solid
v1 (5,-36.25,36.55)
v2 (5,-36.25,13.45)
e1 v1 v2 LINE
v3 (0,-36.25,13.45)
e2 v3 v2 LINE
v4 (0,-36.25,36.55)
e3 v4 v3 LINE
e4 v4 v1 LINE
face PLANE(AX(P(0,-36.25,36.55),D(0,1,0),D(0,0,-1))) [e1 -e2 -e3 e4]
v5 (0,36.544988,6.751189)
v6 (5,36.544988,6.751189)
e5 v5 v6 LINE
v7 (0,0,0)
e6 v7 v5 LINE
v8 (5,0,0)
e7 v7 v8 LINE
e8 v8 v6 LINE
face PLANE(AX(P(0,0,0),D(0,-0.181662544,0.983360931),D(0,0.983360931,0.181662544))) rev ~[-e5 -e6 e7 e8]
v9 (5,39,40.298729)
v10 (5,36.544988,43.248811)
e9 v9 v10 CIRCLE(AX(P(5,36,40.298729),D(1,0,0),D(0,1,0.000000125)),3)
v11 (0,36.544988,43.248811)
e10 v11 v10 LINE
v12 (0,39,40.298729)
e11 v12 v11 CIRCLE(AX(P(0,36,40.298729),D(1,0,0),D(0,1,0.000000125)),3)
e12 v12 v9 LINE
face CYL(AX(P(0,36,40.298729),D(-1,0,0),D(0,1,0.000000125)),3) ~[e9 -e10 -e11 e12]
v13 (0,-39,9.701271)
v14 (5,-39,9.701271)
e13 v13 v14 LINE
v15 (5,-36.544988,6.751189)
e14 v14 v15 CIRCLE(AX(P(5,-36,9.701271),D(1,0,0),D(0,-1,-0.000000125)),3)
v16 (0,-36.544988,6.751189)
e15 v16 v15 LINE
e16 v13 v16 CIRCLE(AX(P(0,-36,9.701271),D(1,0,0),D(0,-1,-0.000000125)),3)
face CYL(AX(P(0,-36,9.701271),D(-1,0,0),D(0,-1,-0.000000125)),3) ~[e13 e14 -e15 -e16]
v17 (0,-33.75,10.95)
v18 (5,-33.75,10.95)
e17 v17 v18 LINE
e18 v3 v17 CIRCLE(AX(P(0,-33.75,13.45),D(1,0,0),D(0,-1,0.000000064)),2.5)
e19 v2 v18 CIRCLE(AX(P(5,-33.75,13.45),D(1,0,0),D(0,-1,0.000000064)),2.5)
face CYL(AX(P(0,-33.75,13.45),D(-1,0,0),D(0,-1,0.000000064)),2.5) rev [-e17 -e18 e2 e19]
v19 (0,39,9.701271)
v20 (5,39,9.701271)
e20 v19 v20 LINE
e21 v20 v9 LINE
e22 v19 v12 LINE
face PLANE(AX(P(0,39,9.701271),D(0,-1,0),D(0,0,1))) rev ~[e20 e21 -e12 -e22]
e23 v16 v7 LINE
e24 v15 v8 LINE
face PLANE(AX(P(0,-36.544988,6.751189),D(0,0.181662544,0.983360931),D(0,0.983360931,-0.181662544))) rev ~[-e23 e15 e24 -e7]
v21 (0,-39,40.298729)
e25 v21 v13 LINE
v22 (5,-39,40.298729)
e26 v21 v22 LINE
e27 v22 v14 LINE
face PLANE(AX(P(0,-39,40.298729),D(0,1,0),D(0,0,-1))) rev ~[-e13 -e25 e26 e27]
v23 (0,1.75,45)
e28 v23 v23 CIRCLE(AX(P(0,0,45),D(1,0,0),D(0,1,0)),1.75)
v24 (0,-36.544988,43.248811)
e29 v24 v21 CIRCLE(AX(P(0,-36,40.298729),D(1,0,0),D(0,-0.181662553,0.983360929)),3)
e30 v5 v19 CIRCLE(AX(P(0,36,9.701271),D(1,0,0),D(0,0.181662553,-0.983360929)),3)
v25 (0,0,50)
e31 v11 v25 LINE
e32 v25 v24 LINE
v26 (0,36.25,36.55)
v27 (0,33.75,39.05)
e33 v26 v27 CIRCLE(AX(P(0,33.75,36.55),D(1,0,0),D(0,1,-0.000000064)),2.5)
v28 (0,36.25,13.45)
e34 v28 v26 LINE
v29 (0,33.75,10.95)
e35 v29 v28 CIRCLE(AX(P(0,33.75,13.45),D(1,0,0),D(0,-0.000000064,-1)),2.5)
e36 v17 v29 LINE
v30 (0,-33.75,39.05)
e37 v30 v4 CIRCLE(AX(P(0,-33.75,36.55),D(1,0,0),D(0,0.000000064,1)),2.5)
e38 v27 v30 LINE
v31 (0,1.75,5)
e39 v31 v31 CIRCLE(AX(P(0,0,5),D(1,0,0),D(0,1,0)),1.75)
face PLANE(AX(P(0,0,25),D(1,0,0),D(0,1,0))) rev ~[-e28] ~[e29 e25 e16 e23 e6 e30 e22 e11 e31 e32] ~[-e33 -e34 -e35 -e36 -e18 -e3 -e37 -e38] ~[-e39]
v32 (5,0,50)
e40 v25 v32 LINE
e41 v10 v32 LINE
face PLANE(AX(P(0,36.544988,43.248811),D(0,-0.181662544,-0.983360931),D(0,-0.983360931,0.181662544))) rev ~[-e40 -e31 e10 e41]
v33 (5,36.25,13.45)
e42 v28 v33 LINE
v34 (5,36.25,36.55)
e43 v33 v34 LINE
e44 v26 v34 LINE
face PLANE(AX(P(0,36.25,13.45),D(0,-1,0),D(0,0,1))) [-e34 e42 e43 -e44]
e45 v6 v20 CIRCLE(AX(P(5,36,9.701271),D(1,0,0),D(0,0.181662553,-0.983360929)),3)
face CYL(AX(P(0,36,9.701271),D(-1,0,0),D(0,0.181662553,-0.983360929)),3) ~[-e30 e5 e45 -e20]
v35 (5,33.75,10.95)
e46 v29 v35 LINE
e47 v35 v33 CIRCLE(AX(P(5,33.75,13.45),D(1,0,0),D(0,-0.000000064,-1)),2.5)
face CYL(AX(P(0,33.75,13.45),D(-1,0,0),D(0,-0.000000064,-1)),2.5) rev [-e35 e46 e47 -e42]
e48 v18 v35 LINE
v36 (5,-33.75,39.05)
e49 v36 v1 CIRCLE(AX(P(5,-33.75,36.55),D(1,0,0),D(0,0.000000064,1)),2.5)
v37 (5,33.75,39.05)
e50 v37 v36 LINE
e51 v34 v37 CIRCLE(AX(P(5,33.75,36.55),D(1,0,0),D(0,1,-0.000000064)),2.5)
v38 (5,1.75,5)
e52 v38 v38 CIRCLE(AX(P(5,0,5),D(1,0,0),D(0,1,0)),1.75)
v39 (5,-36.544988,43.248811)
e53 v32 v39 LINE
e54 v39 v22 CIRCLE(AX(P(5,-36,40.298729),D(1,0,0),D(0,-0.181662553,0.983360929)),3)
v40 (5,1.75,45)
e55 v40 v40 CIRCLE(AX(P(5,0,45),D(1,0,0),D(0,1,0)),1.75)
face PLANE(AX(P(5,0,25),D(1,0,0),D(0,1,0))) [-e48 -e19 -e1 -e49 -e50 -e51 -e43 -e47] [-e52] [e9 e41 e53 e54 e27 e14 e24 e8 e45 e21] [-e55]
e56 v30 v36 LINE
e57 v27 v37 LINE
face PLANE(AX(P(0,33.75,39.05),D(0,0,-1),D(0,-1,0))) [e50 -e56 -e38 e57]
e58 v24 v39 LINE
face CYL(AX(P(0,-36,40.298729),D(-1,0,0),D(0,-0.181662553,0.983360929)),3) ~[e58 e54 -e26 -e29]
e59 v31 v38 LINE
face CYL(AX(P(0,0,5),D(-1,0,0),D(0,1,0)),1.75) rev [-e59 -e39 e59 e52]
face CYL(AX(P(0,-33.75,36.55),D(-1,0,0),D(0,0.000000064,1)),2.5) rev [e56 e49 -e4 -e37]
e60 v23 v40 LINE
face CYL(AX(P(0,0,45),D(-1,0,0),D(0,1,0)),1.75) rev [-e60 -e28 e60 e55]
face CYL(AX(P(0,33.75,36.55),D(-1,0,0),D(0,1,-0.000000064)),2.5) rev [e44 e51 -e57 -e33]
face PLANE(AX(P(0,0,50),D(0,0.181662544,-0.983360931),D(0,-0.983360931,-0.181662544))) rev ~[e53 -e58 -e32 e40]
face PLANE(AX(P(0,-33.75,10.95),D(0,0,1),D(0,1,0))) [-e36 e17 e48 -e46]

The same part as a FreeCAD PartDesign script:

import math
import FreeCAD as App
import Part
import Sketcher
from FreeCAD import Vector

doc = App.newDocument("Part")
body = doc.addObject("PartDesign::Body", "Body")

# Sketch on YZ plane
sketch1 = body.newObject("Sketcher::SketchObject", "Sketch")
sketch1.AttachmentSupport = (doc.getObject("YZ_Plane"), [""])
sketch1.MapMode = "FlatFace"
sketch1.addGeometry([
    Part.LineSegment(Vector(39, 9.7, 0), Vector(39, 40.3, 0)),  # 0
    Part.ArcOfCircle(Part.Circle(Vector(36, 40.3, 0), Vector(0, 0, 1), 3), math.radians(0), math.radians(80)),  # 1
    Part.LineSegment(Vector(36.5, 43.2, 0), Vector(0, 50, 0)),  # 2
    Part.LineSegment(Vector(0, 50, 0), Vector(-36.5, 43.2, 0)),  # 3
    Part.ArcOfCircle(Part.Circle(Vector(-36, 40.3, 0), Vector(0, 0, 1), 3), math.radians(100), math.radians(180)),  # 4
    Part.LineSegment(Vector(-39, 40.3, 0), Vector(-39, 9.7, 0)),  # 5
    Part.ArcOfCircle(Part.Circle(Vector(-36, 9.7, 0), Vector(0, 0, 1), 3), math.radians(-180), math.radians(-100)),  # 6
    Part.LineSegment(Vector(-36.5, 6.8, 0), Vector(0, 0, 0)),  # 7
    Part.LineSegment(Vector(0, 0, 0), Vector(36.5, 6.8, 0)),  # 8
    Part.ArcOfCircle(Part.Circle(Vector(36, 9.7, 0), Vector(0, 0, 1), 3), math.radians(-80), math.radians(0)),  # 9
], False)
sketch1.addConstraint([
    Sketcher.Constraint("Tangent", 0, 2, 1, 1),
    Sketcher.Constraint("Tangent", 1, 2, 2, 1),
    Sketcher.Constraint("Coincident", 2, 2, 3, 1),
    Sketcher.Constraint("Tangent", 3, 2, 4, 1),
    Sketcher.Constraint("Tangent", 4, 2, 5, 1),
    Sketcher.Constraint("Tangent", 5, 2, 6, 1),
    Sketcher.Constraint("Tangent", 6, 2, 7, 1),
    Sketcher.Constraint("Coincident", 7, 2, 8, 1),
    Sketcher.Constraint("Tangent", 8, 2, 9, 1),
    Sketcher.Constraint("Tangent", 9, 2, 0, 1),
    Sketcher.Constraint("Vertical", 0),
    Sketcher.Constraint("Vertical", 5),
    Sketcher.Constraint("Coincident", 7, 2, -1, 1),
    Sketcher.Constraint("Equal", 1, 4),
    Sketcher.Constraint("Equal", 4, 6),
    Sketcher.Constraint("Equal", 6, 9),
    Sketcher.Constraint("Symmetric", 1, 3, 4, 3, -2),
    Sketcher.Constraint("PointOnObject", 2, 2, -2),
    Sketcher.Constraint("Parallel", 2, 7),
    Sketcher.Constraint("Parallel", 3, 8),
    Sketcher.Constraint("Radius", 1, 3.0),
    Sketcher.Constraint("DistanceX", -1, 1, 1, 3, 36.0),
    Sketcher.Constraint("DistanceY", -1, 1, 2, 2, 50.0),
    Sketcher.Constraint("DistanceY", 0, 1, 0, 2, 30.597458),
])
pad1 = body.newObject("PartDesign::Pad", "Pad")
pad1.Profile = sketch1
pad1.Length = 5

# Sketch on YZ plane
sketch2 = body.newObject("Sketcher::SketchObject", "Sketch001")
sketch2.AttachmentSupport = (doc.getObject("YZ_Plane"), [""])
sketch2.MapMode = "FlatFace"
sketch2.addGeometry([
    Part.Circle(Vector(0, 45, 0), Vector(0, 0, 1), 1.8),  # 0
    Part.Circle(Vector(0, 5, 0), Vector(0, 0, 1), 1.8),  # 1
    Part.LineSegment(Vector(-33.8, 10.9, 0), Vector(33.8, 10.9, 0)),  # 2
    Part.ArcOfCircle(Part.Circle(Vector(33.8, 13.4, 0), Vector(0, 0, 1), 2.5), math.radians(-90), math.radians(0)),  # 3
    Part.LineSegment(Vector(36.2, 13.4, 0), Vector(36.2, 36.5, 0)),  # 4
    Part.ArcOfCircle(Part.Circle(Vector(33.8, 36.6, 0), Vector(0, 0, 1), 2.5), math.radians(0), math.radians(90)),  # 5
    Part.LineSegment(Vector(33.8, 39, 0), Vector(-33.8, 39, 0)),  # 6
    Part.ArcOfCircle(Part.Circle(Vector(-33.8, 36.6, 0), Vector(0, 0, 1), 2.5), math.radians(90), math.radians(180)),  # 7
    Part.LineSegment(Vector(-36.2, 36.5, 0), Vector(-36.2, 13.4, 0)),  # 8
    Part.ArcOfCircle(Part.Circle(Vector(-33.8, 13.4, 0), Vector(0, 0, 1), 2.5), math.radians(180), math.radians(270)),  # 9
], False)
sketch2.addConstraint([
    Sketcher.Constraint("Tangent", 2, 2, 3, 1),
    Sketcher.Constraint("Tangent", 3, 2, 4, 1),
    Sketcher.Constraint("Tangent", 4, 2, 5, 1),
    Sketcher.Constraint("Tangent", 5, 2, 6, 1),
    Sketcher.Constraint("Tangent", 6, 2, 7, 1),
    Sketcher.Constraint("Tangent", 7, 2, 8, 1),
    Sketcher.Constraint("Tangent", 8, 2, 9, 1),
    Sketcher.Constraint("Tangent", 9, 2, 2, 1),
    Sketcher.Constraint("Horizontal", 2),
    Sketcher.Constraint("Vertical", 4),
    Sketcher.Constraint("Horizontal", 6),
    Sketcher.Constraint("Vertical", 8),
    Sketcher.Constraint("Equal", 0, 1),
    Sketcher.Constraint("Equal", 3, 5),
    Sketcher.Constraint("Equal", 5, 7),
    Sketcher.Constraint("Equal", 7, 9),
    Sketcher.Constraint("PointOnObject", 0, 3, -2),
    Sketcher.Constraint("PointOnObject", 1, 3, -2),
    Sketcher.Constraint("Diameter", 0, 3.5),
    Sketcher.Constraint("Radius", 3, 2.5),
    Sketcher.Constraint("DistanceX", 2, 1, 2, 2, 67.5),
    Sketcher.Constraint("DistanceY", 4, 1, 4, 2, 23.1),
    Sketcher.Constraint("DistanceY", -1, 1, 0, 3, 45.0),
    Sketcher.Constraint("DistanceY", -1, 1, 1, 3, 5.0),
    Sketcher.Constraint("DistanceX", -1, 1, 3, 3, 33.75),
    Sketcher.Constraint("DistanceY", -1, 1, 3, 3, 13.45),
])
pocket1 = body.newObject("PartDesign::Pocket", "Pocket")
pocket1.Profile = sketch2
pocket1.Length = 5
pocket1.Reversed = True

doc.recompute()
